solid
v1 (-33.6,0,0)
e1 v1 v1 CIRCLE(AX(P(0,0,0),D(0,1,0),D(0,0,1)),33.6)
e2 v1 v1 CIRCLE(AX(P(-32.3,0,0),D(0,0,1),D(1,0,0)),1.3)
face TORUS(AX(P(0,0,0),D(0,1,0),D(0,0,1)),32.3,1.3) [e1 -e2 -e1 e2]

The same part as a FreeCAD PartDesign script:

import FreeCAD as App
import Part
import Sketcher

V = App.Vector
Q = App.Units.Quantity

doc = App.newDocument("Part")
body = doc.addObject("PartDesign::Body", "Body")

# Sketch on XY plane
sketch1 = body.newObject("Sketcher::SketchObject", "Sketch")
sketch1.AttachmentSupport = (doc.getObject("XY_Plane"), [""])
sketch1.MapMode = "FlatFace"
sketch1.addGeometry(Part.Circle(V(-32.3, 0, 0), V(0, 0, 1), 1.3), False)
sketch1.addConstraint(Sketcher.Constraint("PointOnObject", 0, 3, -1))
sketch1.addConstraint(Sketcher.Constraint("Diameter", 0, Q("2.6 mm")))
sketch1.addConstraint(Sketcher.Constraint("DistanceX", 0, 3, -1, 1, Q("32.3 mm")))

# Sketch on XZ plane
sketch2 = body.newObject("Sketcher::SketchObject", "Sketch001")
sketch2.AttachmentSupport = (doc.getObject("XZ_Plane"), [""])
sketch2.MapMode = "FlatFace"
sketch2.addGeometry(Part.Circle(V(0, 0, 0), V(0, 0, 1), 32.3), False)
sketch2.addConstraint(Sketcher.Constraint("Coincident", 0, 3, -1, 1))
sketch2.addConstraint(Sketcher.Constraint("Diameter", 0, Q("64.6 mm")))
doc.recompute()

additivepipe = body.newObject("PartDesign::AdditivePipe", "AdditivePipe")
additivepipe.Profile = sketch1
additivepipe.Spine = (sketch2, ["Edge1"])

doc.recompute()
